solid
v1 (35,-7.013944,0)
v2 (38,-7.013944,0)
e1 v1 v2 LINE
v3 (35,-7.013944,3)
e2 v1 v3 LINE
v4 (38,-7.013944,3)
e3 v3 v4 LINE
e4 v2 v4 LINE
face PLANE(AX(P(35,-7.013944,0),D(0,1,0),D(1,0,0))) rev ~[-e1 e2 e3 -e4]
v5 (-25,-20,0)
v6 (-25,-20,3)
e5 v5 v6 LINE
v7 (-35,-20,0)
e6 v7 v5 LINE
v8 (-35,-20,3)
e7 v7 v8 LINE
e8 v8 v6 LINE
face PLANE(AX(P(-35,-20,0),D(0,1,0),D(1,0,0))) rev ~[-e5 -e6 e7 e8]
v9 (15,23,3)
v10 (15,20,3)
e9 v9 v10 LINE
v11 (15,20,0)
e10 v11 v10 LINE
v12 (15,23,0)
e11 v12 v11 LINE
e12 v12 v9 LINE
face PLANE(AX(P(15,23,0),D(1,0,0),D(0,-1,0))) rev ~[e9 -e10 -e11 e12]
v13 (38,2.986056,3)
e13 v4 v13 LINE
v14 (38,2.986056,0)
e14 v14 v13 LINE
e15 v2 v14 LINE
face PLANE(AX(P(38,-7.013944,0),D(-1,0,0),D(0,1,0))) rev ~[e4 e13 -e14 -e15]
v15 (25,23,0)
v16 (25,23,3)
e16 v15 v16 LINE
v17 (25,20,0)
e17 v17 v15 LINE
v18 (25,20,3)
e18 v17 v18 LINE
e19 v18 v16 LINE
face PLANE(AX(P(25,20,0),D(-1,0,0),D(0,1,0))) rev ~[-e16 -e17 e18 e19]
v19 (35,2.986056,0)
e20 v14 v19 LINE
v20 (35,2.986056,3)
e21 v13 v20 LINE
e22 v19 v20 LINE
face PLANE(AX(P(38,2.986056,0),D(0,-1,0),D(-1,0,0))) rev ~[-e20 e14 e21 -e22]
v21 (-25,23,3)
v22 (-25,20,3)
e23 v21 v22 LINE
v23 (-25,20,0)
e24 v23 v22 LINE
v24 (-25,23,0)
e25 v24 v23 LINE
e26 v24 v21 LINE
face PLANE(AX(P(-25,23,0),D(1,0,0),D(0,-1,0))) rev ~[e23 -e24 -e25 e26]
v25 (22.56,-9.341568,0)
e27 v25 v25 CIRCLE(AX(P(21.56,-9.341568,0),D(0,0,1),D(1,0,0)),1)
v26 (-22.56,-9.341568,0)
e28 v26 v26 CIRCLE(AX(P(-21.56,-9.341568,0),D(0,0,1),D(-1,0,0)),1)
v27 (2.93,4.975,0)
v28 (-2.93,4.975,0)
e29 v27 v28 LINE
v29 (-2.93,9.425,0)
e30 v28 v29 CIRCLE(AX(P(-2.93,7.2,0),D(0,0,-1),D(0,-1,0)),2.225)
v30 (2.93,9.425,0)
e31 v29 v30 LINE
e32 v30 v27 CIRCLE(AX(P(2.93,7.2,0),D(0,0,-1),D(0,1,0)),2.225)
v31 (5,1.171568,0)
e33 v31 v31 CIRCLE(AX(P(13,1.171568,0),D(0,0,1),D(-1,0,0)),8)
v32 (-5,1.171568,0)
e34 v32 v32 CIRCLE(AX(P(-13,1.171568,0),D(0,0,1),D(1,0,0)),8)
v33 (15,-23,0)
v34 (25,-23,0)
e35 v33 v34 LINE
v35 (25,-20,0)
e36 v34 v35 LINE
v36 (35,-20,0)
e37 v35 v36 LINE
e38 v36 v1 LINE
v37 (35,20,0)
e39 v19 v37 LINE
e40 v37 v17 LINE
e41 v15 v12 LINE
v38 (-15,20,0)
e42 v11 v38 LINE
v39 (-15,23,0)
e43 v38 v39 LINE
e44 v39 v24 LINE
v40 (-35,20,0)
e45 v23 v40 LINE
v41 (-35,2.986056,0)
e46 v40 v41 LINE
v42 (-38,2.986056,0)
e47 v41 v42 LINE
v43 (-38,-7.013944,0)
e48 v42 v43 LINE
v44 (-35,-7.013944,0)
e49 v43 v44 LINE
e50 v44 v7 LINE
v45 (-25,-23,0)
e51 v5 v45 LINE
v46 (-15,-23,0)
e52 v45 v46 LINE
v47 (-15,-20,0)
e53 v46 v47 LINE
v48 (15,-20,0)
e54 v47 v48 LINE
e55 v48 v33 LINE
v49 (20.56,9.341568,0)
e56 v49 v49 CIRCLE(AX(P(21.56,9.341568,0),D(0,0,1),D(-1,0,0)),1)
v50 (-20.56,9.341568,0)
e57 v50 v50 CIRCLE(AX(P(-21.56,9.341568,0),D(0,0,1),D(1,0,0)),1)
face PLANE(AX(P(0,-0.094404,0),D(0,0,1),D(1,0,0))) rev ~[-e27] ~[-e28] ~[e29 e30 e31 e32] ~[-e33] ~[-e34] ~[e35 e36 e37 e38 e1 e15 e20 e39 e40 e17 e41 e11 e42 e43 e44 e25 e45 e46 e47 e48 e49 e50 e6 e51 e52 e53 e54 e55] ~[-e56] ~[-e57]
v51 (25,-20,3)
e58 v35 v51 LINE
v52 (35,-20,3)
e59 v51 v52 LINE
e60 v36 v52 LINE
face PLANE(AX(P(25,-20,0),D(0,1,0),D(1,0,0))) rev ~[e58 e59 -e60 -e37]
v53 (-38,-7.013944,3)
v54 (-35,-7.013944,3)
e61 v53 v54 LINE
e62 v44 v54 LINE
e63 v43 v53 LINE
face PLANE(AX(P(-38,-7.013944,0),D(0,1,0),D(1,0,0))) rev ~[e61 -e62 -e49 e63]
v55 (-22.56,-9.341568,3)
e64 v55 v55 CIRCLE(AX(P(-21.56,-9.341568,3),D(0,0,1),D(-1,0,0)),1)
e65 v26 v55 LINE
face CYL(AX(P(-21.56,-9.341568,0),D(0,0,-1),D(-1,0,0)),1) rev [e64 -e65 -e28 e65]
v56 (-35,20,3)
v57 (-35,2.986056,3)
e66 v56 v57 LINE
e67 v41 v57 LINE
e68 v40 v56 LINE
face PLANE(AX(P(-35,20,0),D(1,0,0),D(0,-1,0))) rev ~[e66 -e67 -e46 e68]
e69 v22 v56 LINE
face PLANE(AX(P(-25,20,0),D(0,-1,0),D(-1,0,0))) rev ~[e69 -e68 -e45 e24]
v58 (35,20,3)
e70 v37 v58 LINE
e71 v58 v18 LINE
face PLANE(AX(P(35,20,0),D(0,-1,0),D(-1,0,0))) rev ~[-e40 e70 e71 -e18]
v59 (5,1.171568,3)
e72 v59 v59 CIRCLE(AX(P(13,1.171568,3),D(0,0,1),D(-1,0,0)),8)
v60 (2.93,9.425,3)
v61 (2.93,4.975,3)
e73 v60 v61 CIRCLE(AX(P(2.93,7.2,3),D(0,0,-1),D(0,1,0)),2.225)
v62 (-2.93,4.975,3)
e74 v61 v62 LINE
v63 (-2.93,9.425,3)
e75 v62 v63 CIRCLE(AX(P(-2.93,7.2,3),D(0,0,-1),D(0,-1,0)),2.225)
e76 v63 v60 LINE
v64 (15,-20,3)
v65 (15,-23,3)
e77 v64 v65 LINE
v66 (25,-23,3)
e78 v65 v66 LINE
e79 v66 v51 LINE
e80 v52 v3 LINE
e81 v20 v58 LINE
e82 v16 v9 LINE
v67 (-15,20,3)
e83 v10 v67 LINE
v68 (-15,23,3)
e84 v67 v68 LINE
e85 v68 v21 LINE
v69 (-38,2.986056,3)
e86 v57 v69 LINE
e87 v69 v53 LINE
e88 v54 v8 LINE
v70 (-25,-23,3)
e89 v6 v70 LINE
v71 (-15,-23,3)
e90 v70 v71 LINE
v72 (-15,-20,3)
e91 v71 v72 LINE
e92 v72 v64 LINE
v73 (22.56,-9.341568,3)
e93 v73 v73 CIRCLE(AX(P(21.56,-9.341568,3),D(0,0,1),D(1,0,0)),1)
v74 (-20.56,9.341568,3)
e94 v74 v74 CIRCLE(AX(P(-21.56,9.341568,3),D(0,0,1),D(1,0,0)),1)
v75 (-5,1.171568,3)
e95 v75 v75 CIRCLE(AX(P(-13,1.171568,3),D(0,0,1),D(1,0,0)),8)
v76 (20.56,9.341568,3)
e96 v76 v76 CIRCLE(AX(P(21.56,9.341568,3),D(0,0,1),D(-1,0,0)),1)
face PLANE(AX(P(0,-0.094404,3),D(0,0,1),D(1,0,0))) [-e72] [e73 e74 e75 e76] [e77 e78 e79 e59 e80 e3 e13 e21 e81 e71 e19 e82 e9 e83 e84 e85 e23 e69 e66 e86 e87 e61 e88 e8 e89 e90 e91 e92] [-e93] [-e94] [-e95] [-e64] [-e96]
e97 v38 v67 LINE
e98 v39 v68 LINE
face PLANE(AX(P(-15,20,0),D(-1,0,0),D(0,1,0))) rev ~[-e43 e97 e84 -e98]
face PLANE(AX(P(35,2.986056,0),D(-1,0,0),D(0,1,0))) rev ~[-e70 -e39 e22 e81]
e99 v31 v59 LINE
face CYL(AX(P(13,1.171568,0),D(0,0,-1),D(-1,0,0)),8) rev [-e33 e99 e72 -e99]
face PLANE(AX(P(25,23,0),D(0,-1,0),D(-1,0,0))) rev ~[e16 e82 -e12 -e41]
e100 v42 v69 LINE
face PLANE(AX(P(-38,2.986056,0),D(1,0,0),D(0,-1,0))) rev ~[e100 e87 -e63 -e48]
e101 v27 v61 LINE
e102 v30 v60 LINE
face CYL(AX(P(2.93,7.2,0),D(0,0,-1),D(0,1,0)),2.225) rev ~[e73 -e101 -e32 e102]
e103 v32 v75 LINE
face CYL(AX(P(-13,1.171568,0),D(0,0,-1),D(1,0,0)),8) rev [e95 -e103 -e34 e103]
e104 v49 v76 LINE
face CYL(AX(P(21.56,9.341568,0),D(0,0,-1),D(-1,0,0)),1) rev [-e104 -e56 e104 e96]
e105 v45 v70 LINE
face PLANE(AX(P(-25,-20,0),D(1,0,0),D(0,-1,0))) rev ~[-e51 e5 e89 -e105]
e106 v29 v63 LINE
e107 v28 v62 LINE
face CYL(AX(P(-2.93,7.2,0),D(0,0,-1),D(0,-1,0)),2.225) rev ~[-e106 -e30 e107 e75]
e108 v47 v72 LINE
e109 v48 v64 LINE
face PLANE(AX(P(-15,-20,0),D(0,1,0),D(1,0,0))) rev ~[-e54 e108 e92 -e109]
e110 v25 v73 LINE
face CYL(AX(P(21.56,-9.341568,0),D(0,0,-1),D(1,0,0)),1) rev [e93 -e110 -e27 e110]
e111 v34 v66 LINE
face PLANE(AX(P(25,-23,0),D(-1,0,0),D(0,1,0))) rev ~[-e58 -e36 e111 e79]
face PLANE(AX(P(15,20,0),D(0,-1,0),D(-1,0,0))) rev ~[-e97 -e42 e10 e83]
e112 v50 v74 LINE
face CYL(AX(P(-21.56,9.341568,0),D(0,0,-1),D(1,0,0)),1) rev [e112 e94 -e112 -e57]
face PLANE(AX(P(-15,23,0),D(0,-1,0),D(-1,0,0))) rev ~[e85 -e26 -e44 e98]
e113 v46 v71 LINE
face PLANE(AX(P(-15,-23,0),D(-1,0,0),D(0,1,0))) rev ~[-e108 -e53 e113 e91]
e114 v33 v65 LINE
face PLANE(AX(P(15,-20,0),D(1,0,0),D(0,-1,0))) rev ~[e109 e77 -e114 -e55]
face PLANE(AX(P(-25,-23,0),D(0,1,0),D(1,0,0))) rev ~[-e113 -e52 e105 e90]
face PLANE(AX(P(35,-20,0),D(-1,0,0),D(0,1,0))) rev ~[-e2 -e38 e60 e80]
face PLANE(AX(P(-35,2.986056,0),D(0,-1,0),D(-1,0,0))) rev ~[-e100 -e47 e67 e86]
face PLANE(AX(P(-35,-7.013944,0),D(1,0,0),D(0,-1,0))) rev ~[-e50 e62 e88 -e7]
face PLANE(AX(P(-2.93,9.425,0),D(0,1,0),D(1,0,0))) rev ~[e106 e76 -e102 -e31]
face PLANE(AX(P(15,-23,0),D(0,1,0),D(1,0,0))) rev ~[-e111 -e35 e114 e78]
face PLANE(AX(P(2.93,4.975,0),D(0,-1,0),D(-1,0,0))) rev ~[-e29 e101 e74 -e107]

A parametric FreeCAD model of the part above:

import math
import FreeCAD as App
import Part
import Sketcher

V = App.Vector


def add_polygon(sketch, points):
    """Adds a closed chain of lines whose ends are joined by coincident constraints."""
    first, n = sketch.GeometryCount, len(points)
    for a, b in zip(points, points[1:] + points[:1]):
        sketch.addGeometry(Part.LineSegment(App.Vector(*a, 0), App.Vector(*b, 0)), False)
    for i in range(n):
        sketch.addConstraint(Sketcher.Constraint("Coincident", first + i, 2, first + (i + 1) % n, 1))

doc = App.newDocument("Part")
body = doc.addObject("PartDesign::Body", "Body")

# Sketch on XY plane
sketch1 = body.newObject("Sketcher::SketchObject", "Sketch")
sketch1.AttachmentSupport = (doc.getObject("XY_Plane"), [""])
sketch1.MapMode = "FlatFace"
add_polygon(sketch1, [(-35, -7), (-35, -20), (-25, -20), (-25, -23), (-15, -23), (-15, -20), (15, -20), (15, -23), (25, -23), (25, -20), (35, -20), (35, -7), (38, -7), (38, 3), (35, 3), (35, 20), (25, 20), (25, 23), (15, 23), (15, 20), (-15, 20), (-15, 23), (-25, 23), (-25, 20), (-35, 20), (-35, 3), (-38, 3), (-38, -7)])  # lines 0-27
sketch1.addGeometry(Part.Circle(V(-21.6, -9.3, 0), V(0, 0, 1), 1), False)  # 28
sketch1.addGeometry(Part.Circle(V(21.6, -9.3, 0), V(0, 0, 1), 1), False)  # 29
sketch1.addGeometry(Part.Circle(V(-13, 1.2, 0), V(0, 0, 1), 8), False)  # 30
sketch1.addGeometry(Part.Circle(V(-21.6, 9.3, 0), V(0, 0, 1), 1), False)  # 31
sketch1.addGeometry(Part.Circle(V(13, 1.2, 0), V(0, 0, 1), 8), False)  # 32
sketch1.addGeometry(Part.ArcOfCircle(Part.Circle(V(-2.9, 7.2, 0), V(0, 0, 1), 2.2), math.radians(90), math.radians(270)), False)  # 33
sketch1.addGeometry(Part.LineSegment(V(-2.9, 9.4, 0), V(2.9, 9.4, 0)), False)  # 34
sketch1.addGeometry(Part.ArcOfCircle(Part.Circle(V(2.9, 7.2, 0), V(0, 0, 1), 2.2), math.radians(-90), math.radians(90)), False)  # 35
sketch1.addGeometry(Part.LineSegment(V(2.9, 5, 0), V(-2.9, 5, 0)), False)  # 36
sketch1.addGeometry(Part.Circle(V(21.6, 9.3, 0), V(0, 0, 1), 1), False)  # 37
sketch1.addConstraint(Sketcher.Constraint("Tangent", 33, 1, 34, 1))
sketch1.addConstraint(Sketcher.Constraint("Tangent", 34, 2, 35, 2))
sketch1.addConstraint(Sketcher.Constraint("Tangent", 35, 1, 36, 1))
sketch1.addConstraint(Sketcher.Constraint("Tangent", 36, 2, 33, 2))
sketch1.addConstraint(Sketcher.Constraint("Vertical", 0))
sketch1.addConstraint(Sketcher.Constraint("Horizontal", 1))
sketch1.addConstraint(Sketcher.Constraint("Vertical", 2))
sketch1.addConstraint(Sketcher.Constraint("Horizontal", 3))
sketch1.addConstraint(Sketcher.Constraint("Vertical", 4))
sketch1.addConstraint(Sketcher.Constraint("Horizontal", 5))
sketch1.addConstraint(Sketcher.Constraint("Vertical", 6))
sketch1.addConstraint(Sketcher.Constraint("Horizontal", 7))
sketch1.addConstraint(Sketcher.Constraint("Vertical", 8))
sketch1.addConstraint(Sketcher.Constraint("Horizontal", 9))
sketch1.addConstraint(Sketcher.Constraint("Vertical", 10))
sketch1.addConstraint(Sketcher.Constraint("Horizontal", 11))
sketch1.addConstraint(Sketcher.Constraint("Vertical", 12))
sketch1.addConstraint(Sketcher.Constraint("Horizontal", 13))
sketch1.addConstraint(Sketcher.Constraint("Vertical", 14))
sketch1.addConstraint(Sketcher.Constraint("Horizontal", 15))
sketch1.addConstraint(Sketcher.Constraint("Vertical", 16))
sketch1.addConstraint(Sketcher.Constraint("Horizontal", 17))
sketch1.addConstraint(Sketcher.Constraint("Vertical", 18))
sketch1.addConstraint(Sketcher.Constraint("Horizontal", 19))
sketch1.addConstraint(Sketcher.Constraint("Vertical", 20))
sketch1.addConstraint(Sketcher.Constraint("Horizontal", 21))
sketch1.addConstraint(Sketcher.Constraint("Vertical", 22))
sketch1.addConstraint(Sketcher.Constraint("Horizontal", 23))
sketch1.addConstraint(Sketcher.Constraint("Vertical", 24))
sketch1.addConstraint(Sketcher.Constraint("Horizontal", 25))
sketch1.addConstraint(Sketcher.Constraint("Vertical", 26))
sketch1.addConstraint(Sketcher.Constraint("Horizontal", 27))
sketch1.addConstraint(Sketcher.Constraint("Horizontal", 34))
sketch1.addConstraint(Sketcher.Constraint("Horizontal", 36))
sketch1.addConstraint(Sketcher.Constraint("Equal", 28, 29))
sketch1.addConstraint(Sketcher.Constraint("Equal", 29, 31))
sketch1.addConstraint(Sketcher.Constraint("Equal", 30, 32))
sketch1.addConstraint(Sketcher.Constraint("Equal", 31, 37))
sketch1.addConstraint(Sketcher.Constraint("Symmetric", 29, 3, 31, 3, -1, 1))
sketch1.addConstraint(Sketcher.Constraint("Symmetric", 28, 3, 37, 3, -1, 1))
sketch1.addConstraint(Sketcher.Constraint("Symmetric", 0, 2, 14, 2, -1, 1))
sketch1.addConstraint(Sketcher.Constraint("Symmetric", 2, 2, 16, 2, -1, 1))
sketch1.addConstraint(Sketcher.Constraint("Symmetric", 4, 2, 18, 2, -1, 1))
sketch1.addConstraint(Sketcher.Constraint("Symmetric", 6, 2, 20, 2, -1, 1))
sketch1.addConstraint(Sketcher.Constraint("Symmetric", 8, 2, 22, 2, -1, 1))
sketch1.addConstraint(Sketcher.Constraint("Symmetric", 28, 3, 29, 3, -2))
sketch1.addConstraint(Sketcher.Constraint("Symmetric", 30, 3, 32, 3, -2))
sketch1.addConstraint(Sketcher.Constraint("Symmetric", 3, 2, 6, 2, -2))
sketch1.addConstraint(Sketcher.Constraint("Symmetric", 1, 2, 8, 2, -2))
sketch1.addConstraint(Sketcher.Constraint("Symmetric", 13, 2, 24, 2, -2))
sketch1.addConstraint(Sketcher.Constraint("Symmetric", 11, 2, 26, 2, -2))
sketch1.addConstraint(Sketcher.Constraint("Horizontal", 1, 2, 4, 2))
sketch1.addConstraint(Sketcher.Constraint("Vertical", 10, 2, 13, 2))
sketch1.addConstraint(Sketcher.Constraint("Equal", 1, 3))
sketch1.addConstraint(Sketcher.Constraint("Equal", 27, 2))
sketch1.addConstraint(Sketcher.Constraint("Equal", 23, 12))
sketch1.addConstraint(Sketcher.Constraint("Diameter", 28, 2.0))
sketch1.addConstraint(Sketcher.Constraint("Diameter", 30, 16.0))
sketch1.addConstraint(Sketcher.Constraint("DistanceX", 1, 1, 1, 2, 10.0))
sketch1.addConstraint(Sketcher.Constraint("DistanceX", 5, 1, 5, 2, 30.0))
sketch1.addConstraint(Sketcher.Constraint("DistanceX", 11, 1, 11, 2, 3.0))
sketch1.addConstraint(Sketcher.Constraint("DistanceX", 30, 3, -1, 1, 13.0))
sketch1.addConstraint(Sketcher.Constraint("DistanceY", 0, 2, -1, 1, 20.0))
sketch1.addConstraint(Sketcher.Constraint("Radius", 33, 2.225))
sketch1.addConstraint(Sketcher.Constraint("DistanceX", 34, 1, 34, 2, 5.86))
sketch1.addConstraint(Sketcher.Constraint("DistanceY", -1, 1, 33, 3, 7.2))
sketch1.addConstraint(Sketcher.Constraint("DistanceX", 28, 3, -1, 1, 21.56))
sketch1.addConstraint(Sketcher.Constraint("DistanceX", 33, 3, -1, 1, 2.93))
sketch1.addConstraint(Sketcher.Constraint("DistanceY", 30, 3, 31, 3, 8.17))
sketch1.addConstraint(Sketcher.Constraint("DistanceY", 0, 2, 0, 1, 12.986056))
sketch1.addConstraint(Sketcher.Constraint("DistanceY", 28, 3, -1, 1, 9.341568))
pad1 = body.newObject("PartDesign::Pad", "Pad")
pad1.Profile = sketch1
pad1.Length = 3

doc.recompute()
